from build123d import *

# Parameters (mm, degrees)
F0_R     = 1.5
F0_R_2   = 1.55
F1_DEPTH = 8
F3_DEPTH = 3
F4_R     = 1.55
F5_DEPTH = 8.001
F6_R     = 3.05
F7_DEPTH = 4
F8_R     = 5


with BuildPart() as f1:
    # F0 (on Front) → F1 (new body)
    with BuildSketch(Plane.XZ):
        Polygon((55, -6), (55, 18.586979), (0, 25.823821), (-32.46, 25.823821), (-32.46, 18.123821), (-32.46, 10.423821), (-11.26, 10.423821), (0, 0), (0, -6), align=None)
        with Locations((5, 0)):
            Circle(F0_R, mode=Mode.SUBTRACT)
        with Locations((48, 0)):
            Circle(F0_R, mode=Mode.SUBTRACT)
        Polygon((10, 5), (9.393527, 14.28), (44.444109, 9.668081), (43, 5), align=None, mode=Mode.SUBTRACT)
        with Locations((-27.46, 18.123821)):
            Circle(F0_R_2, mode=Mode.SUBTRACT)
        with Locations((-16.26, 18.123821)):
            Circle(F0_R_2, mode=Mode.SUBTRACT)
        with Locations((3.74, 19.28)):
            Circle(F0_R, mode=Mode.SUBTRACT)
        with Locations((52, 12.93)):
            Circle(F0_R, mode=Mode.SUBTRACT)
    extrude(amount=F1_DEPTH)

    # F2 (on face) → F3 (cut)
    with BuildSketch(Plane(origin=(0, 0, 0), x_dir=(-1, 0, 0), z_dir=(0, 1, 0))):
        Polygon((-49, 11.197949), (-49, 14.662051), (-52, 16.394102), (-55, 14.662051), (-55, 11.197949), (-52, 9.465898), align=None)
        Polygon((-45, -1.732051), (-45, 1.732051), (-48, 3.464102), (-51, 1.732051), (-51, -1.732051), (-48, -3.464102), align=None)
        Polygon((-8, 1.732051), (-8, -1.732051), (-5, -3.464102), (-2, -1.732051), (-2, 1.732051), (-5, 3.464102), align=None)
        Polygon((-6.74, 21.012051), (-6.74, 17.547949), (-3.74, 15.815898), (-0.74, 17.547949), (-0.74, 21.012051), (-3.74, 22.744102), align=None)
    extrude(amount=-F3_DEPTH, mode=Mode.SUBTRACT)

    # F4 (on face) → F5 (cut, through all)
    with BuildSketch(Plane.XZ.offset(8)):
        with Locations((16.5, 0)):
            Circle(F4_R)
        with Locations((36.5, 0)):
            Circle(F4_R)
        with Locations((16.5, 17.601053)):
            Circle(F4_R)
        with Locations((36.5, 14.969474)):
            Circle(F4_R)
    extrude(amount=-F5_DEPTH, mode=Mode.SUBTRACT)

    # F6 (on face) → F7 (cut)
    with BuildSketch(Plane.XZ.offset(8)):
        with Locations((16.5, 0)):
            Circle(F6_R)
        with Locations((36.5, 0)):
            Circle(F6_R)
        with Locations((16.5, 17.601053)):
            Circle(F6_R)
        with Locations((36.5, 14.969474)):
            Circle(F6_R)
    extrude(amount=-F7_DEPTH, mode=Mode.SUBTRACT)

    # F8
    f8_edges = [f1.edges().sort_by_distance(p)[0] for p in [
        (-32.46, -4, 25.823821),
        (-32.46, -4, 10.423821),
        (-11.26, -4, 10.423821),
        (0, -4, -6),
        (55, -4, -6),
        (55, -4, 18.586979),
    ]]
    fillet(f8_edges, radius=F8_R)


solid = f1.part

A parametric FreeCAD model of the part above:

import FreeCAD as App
import Part
import Sketcher
from FreeCAD import Vector
Q = App.Units.Quantity


def edges_at(feature, points):
    """Names of the edges that pass closest to the given points."""
    edges = feature.Shape.Edges
    near = lambda p: min(range(len(edges)), key=lambda i: edges[i].distToShape(Part.Vertex(*p))[0])
    return sorted({f"Edge{near(p) + 1}" for p in points})

doc = App.newDocument("Part")
body = doc.addObject("PartDesign::Body", "Body")

sketch1 = body.newObject("Sketcher::SketchObject", "Sketch")
sketch1.AttachmentSupport = (doc.getObject("XZ_Plane"), [""])
sketch1.MapMode = "FlatFace"
sketch1.addGeometry(Part.LineSegment(Vector(55, -6, 0), Vector(55, 18.586979, 0)), False)
sketch1.addGeometry(Part.LineSegment(Vector(55, 18.586979, 0), Vector(0, 25.823821, 0)), False)
sketch1.addGeometry(Part.LineSegment(Vector(0, 25.823821, 0), Vector(-32.46, 25.823821, 0)), False)
sketch1.addGeometry(Part.LineSegment(Vector(-32.46, 25.823821, 0), Vector(-32.46, 10.423821, 0)), False)
sketch1.addGeometry(Part.LineSegment(Vector(-32.46, 10.423821, 0), Vector(-11.26, 10.423821, 0)), False)
sketch1.addGeometry(Part.LineSegment(Vector(-11.26, 10.423821, 0), Vector(0, 0, 0)), False)
sketch1.addGeometry(Part.LineSegment(Vector(0, 0, 0), Vector(0, -6, 0)), False)
sketch1.addGeometry(Part.LineSegment(Vector(0, -6, 0), Vector(55, -6, 0)), False)
sketch1.addGeometry(Part.Circle(Vector(5, 0, 0), Vector(0, 0, 1), 1.5), False)
sketch1.addGeometry(Part.Circle(Vector(48, 0, 0), Vector(0, 0, 1), 1.5), False)
sketch1.addGeometry(Part.Circle(Vector(-27.46, 18.123821, 0), Vector(0, 0, 1), 1.55), False)
sketch1.addGeometry(Part.Circle(Vector(-16.26, 18.123821, 0), Vector(0, 0, 1), 1.55), False)
sketch1.addGeometry(Part.Circle(Vector(3.74, 19.28, 0), Vector(0, 0, 1), 1.5), False)
sketch1.addGeometry(Part.LineSegment(Vector(43, 5, 0), Vector(10, 5, 0)), False)
sketch1.addGeometry(Part.LineSegment(Vector(10, 5, 0), Vector(9.393527, 14.28, 0)), False)
sketch1.addGeometry(Part.LineSegment(Vector(9.393527, 14.28, 0), Vector(44.444109, 9.668081, 0)), False)
sketch1.addGeometry(Part.LineSegment(Vector(44.444109, 9.668081, 0), Vector(43, 5, 0)), False)
sketch1.addGeometry(Part.Circle(Vector(52, 12.93, 0), Vector(0, 0, 1), 1.5), False)
sketch1.addConstraint(Sketcher.Constraint("Coincident", 0, 2, 1, 1))
sketch1.addConstraint(Sketcher.Constraint("Coincident", 1, 2, 2, 1))
sketch1.addConstraint(Sketcher.Constraint("Coincident", 2, 2, 3, 1))
sketch1.addConstraint(Sketcher.Constraint("Coincident", 3, 2, 4, 1))
sketch1.addConstraint(Sketcher.Constraint("Coincident", 4, 2, 5, 1))
sketch1.addConstraint(Sketcher.Constraint("Coincident", 5, 2, 6, 1))
sketch1.addConstraint(Sketcher.Constraint("Coincident", 6, 2, 7, 1))
sketch1.addConstraint(Sketcher.Constraint("Coincident", 7, 2, 0, 1))
sketch1.addConstraint(Sketcher.Constraint("Coincident", 13, 2, 14, 1))
sketch1.addConstraint(Sketcher.Constraint("Coincident", 14, 2, 15, 1))
sketch1.addConstraint(Sketcher.Constraint("Coincident", 15, 2, 16, 1))
sketch1.addConstraint(Sketcher.Constraint("Coincident", 16, 2, 13, 1))
sketch1.addConstraint(Sketcher.Constraint("Vertical", 0))
sketch1.addConstraint(Sketcher.Constraint("Horizontal", 2))
sketch1.addConstraint(Sketcher.Constraint("Vertical", 3))
sketch1.addConstraint(Sketcher.Constraint("Horizontal", 4))
sketch1.addConstraint(Sketcher.Constraint("Vertical", 6))
sketch1.addConstraint(Sketcher.Constraint("Horizontal", 7))
sketch1.addConstraint(Sketcher.Constraint("Horizontal", 13))
sketch1.addConstraint(Sketcher.Constraint("Coincident", 5, 2, -1, 1))
sketch1.addConstraint(Sketcher.Constraint("Equal", 8, 9))
sketch1.addConstraint(Sketcher.Constraint("Equal", 10, 11))
sketch1.addConstraint(Sketcher.Constraint("Equal", 9, 12))
sketch1.addConstraint(Sketcher.Constraint("Equal", 12, 17))
sketch1.addConstraint(Sketcher.Constraint("PointOnObject", 8, 3, -1))
sketch1.addConstraint(Sketcher.Constraint("PointOnObject", 9, 3, -1))
sketch1.addConstraint(Sketcher.Constraint("PointOnObject", 1, 2, -2))
sketch1.addConstraint(Sketcher.Constraint("Parallel", 1, 15))
sketch1.addConstraint(Sketcher.Constraint("Horizontal", 10, 3, 11, 3))
sketch1.addConstraint(Sketcher.Constraint("Diameter", 8, 3.0))
sketch1.addConstraint(Sketcher.Constraint("Diameter", 10, 3.1))
sketch1.addConstraint(Sketcher.Constraint("DistanceX", 7, 1, 7, 2, 55.0))
sketch1.addConstraint(Sketcher.Constraint("DistanceX", 13, 2, 13, 1, 33.0))
sketch1.addConstraint(Sketcher.Constraint("DistanceY", 6, 2, 6, 1, 6.0))
sketch1.addConstraint(Sketcher.Constraint("DistanceX", 4, 1, 4, 2, 21.2))
sketch1.addConstraint(Sketcher.Constraint("DistanceY", 3, 2, 3, 1, 15.4))
sketch1.addConstraint(Sketcher.Constraint("DistanceX", -1, 1, 8, 3, 5.0))
sketch1.addConstraint(Sketcher.Constraint("DistanceX", -1, 1, 9, 3, 48.0))
sketch1.addConstraint(Sketcher.Constraint("DistanceX", -1, 1, 17, 3, 52.0))
sketch1.addConstraint(Sketcher.Constraint("DistanceX", -1, 1, 13, 2, 10.0))
sketch1.addConstraint(Sketcher.Constraint("DistanceY", -1, 1, 13, 2, 5.0))
sketch1.addConstraint(Sketcher.Constraint("DistanceX", 11, 3, 12, 3, 20.0))
sketch1.addConstraint(Sketcher.Constraint("DistanceX", 2, 2, 10, 3, 5.0))
sketch1.addConstraint(Sketcher.Constraint("DistanceX", 11, 3, 4, 2, 5.0))
sketch1.addConstraint(Sketcher.Constraint("DistanceY", 14, 2, 12, 3, 5.0))
sketch1.addConstraint(Sketcher.Constraint("DistanceX", 2, 2, 2, 1, 32.46))
sketch1.addConstraint(Sketcher.Constraint("DistanceY", 11, 3, 1, 2, 7.7))
sketch1.addConstraint(Sketcher.Constraint("DistanceY", -1, 1, 12, 3, 19.28))
sketch1.addConstraint(Sketcher.Constraint("DistanceY", -1, 1, 17, 3, 12.93))
sketch1.addConstraint(Sketcher.Constraint("DistanceY", 0, 1, 0, 2, 24.586979))
sketch1.addConstraint(Sketcher.Constraint("Distance", 16, 4.886352))
sketch1.addConstraint(Sketcher.Constraint("DistanceY", -1, 1, 10, 3, 18.123821))
sketch1.addConstraint(Sketcher.Constraint("DistanceX", -1, 1, 15, 2, 44.444109))
pad1 = body.newObject("PartDesign::Pad", "Pad")
pad1.Profile = sketch1
pad1.Length = 8

sketch2 = body.newObject("Sketcher::SketchObject", "Sketch001")
sketch2.AttachmentSupport = (doc.getObject("XZ_Plane"), [""])
sketch2.MapMode = "FlatFace"
sketch2.addGeometry(Part.LineSegment(Vector(49, 11.197949, 0), Vector(49, 14.662051, 0)), False)
sketch2.addGeometry(Part.LineSegment(Vector(49, 14.662051, 0), Vector(52, 16.394102, 0)), False)
sketch2.addGeometry(Part.LineSegment(Vector(52, 16.394102, 0), Vector(55, 14.662051, 0)), False)
sketch2.addGeometry(Part.LineSegment(Vector(55, 14.662051, 0), Vector(55, 11.197949, 0)), False)
sketch2.addGeometry(Part.LineSegment(Vector(55, 11.197949, 0), Vector(52, 9.465898, 0)), False)
sketch2.addGeometry(Part.LineSegment(Vector(52, 9.465898, 0), Vector(49, 11.197949, 0)), False)
sketch2.addGeometry(Part.LineSegment(Vector(45, -1.732051, 0), Vector(45, 1.732051, 0)), False)
sketch2.addGeometry(Part.LineSegment(Vector(45, 1.732051, 0), Vector(48, 3.464102, 0)), False)
sketch2.addGeometry(Part.LineSegment(Vector(48, 3.464102, 0), Vector(51, 1.732051, 0)), False)
sketch2.addGeometry(Part.LineSegment(Vector(51, 1.732051, 0), Vector(51, -1.732051, 0)), False)
sketch2.addGeometry(Part.LineSegment(Vector(51, -1.732051, 0), Vector(48, -3.464102, 0)), False)
sketch2.addGeometry(Part.LineSegment(Vector(48, -3.464102, 0), Vector(45, -1.732051, 0)), False)
sketch2.addGeometry(Part.LineSegment(Vector(8, 1.732051, 0), Vector(8, -1.732051, 0)), False)
sketch2.addGeometry(Part.LineSegment(Vector(8, -1.732051, 0), Vector(5, -3.464102, 0)), False)
sketch2.addGeometry(Part.LineSegment(Vector(5, -3.464102, 0), Vector(2, -1.732051, 0)), False)
sketch2.addGeometry(Part.LineSegment(Vector(2, -1.732051, 0), Vector(2, 1.732051, 0)), False)
sketch2.addGeometry(Part.LineSegment(Vector(2, 1.732051, 0), Vector(5, 3.464102, 0)), False)
sketch2.addGeometry(Part.LineSegment(Vector(5, 3.464102, 0), Vector(8, 1.732051, 0)), False)
sketch2.addGeometry(Part.LineSegment(Vector(6.74, 21.012051, 0), Vector(6.74, 17.547949, 0)), False)
sketch2.addGeometry(Part.LineSegment(Vector(6.74, 17.547949, 0), Vector(3.74, 15.815898, 0)), False)
sketch2.addGeometry(Part.LineSegment(Vector(3.74, 15.815898, 0), Vector(0.74, 17.547949, 0)), False)
sketch2.addGeometry(Part.LineSegment(Vector(0.74, 17.547949, 0), Vector(0.74, 21.012051, 0)), False)
sketch2.addGeometry(Part.LineSegment(Vector(0.74, 21.012051, 0), Vector(3.74, 22.744102, 0)), False)
sketch2.addGeometry(Part.LineSegment(Vector(3.74, 22.744102, 0), Vector(6.74, 21.012051, 0)), False)
sketch2.addConstraint(Sketcher.Constraint("Coincident", 0, 2, 1, 1))
sketch2.addConstraint(Sketcher.Constraint("Coincident", 1, 2, 2, 1))
sketch2.addConstraint(Sketcher.Constraint("Coincident", 2, 2, 3, 1))
sketch2.addConstraint(Sketcher.Constraint("Coincident", 3, 2, 4, 1))
sketch2.addConstraint(Sketcher.Constraint("Coincident", 4, 2, 5, 1))
sketch2.addConstraint(Sketcher.Constraint("Coincident", 5, 2, 0, 1))
sketch2.addConstraint(Sketcher.Constraint("Coincident", 6, 2, 7, 1))
sketch2.addConstraint(Sketcher.Constraint("Coincident", 7, 2, 8, 1))
sketch2.addConstraint(Sketcher.Constraint("Coincident", 8, 2, 9, 1))
sketch2.addConstraint(Sketcher.Constraint("Coincident", 9, 2, 10, 1))
sketch2.addConstraint(Sketcher.Constraint("Coincident", 10, 2, 11, 1))
sketch2.addConstraint(Sketcher.Constraint("Coincident", 11, 2, 6, 1))
sketch2.addConstraint(Sketcher.Constraint("Coincident", 12, 2, 13, 1))
sketch2.addConstraint(Sketcher.Constraint("Coincident", 13, 2, 14, 1))
sketch2.addConstraint(Sketcher.Constraint("Coincident", 14, 2, 15, 1))
sketch2.addConstraint(Sketcher.Constraint("Coincident", 15, 2, 16, 1))
sketch2.addConstraint(Sketcher.Constraint("Coincident", 16, 2, 17, 1))
sketch2.addConstraint(Sketcher.Constraint("Coincident", 17, 2, 12, 1))
sketch2.addConstraint(Sketcher.Constraint("Coincident", 18, 2, 19, 1))
sketch2.addConstraint(Sketcher.Constraint("Coincident", 19, 2, 20, 1))
sketch2.addConstraint(Sketcher.Constraint("Coincident", 20, 2, 21, 1))
sketch2.addConstraint(Sketcher.Constraint("Coincident", 21, 2, 22, 1))
sketch2.addConstraint(Sketcher.Constraint("Coincident", 22, 2, 23, 1))
sketch2.addConstraint(Sketcher.Constraint("Coincident", 23, 2, 18, 1))
sketch2.addConstraint(Sketcher.Constraint("Vertical", 0))
sketch2.addConstraint(Sketcher.Constraint("Vertical", 3))
sketch2.addConstraint(Sketcher.Constraint("Vertical", 6))
sketch2.addConstraint(Sketcher.Constraint("Vertical", 9))
sketch2.addConstraint(Sketcher.Constraint("Vertical", 12))
sketch2.addConstraint(Sketcher.Constraint("Vertical", 15))
sketch2.addConstraint(Sketcher.Constraint("Vertical", 18))
sketch2.addConstraint(Sketcher.Constraint("Vertical", 21))
sketch2.addConstraint(Sketcher.Constraint("Symmetric", 7, 2, 10, 2, -1))
sketch2.addConstraint(Sketcher.Constraint("Symmetric", 13, 2, 16, 2, -1))
sketch2.addConstraint(Sketcher.Constraint("Parallel", 1, 4))
sketch2.addConstraint(Sketcher.Constraint("Parallel", 2, 5))
sketch2.addConstraint(Sketcher.Constraint("Parallel", 4, 7))
sketch2.addConstraint(Sketcher.Constraint("Parallel", 5, 8))
sketch2.addConstraint(Sketcher.Constraint("Parallel", 7, 10))
sketch2.addConstraint(Sketcher.Constraint("Parallel", 8, 11))
sketch2.addConstraint(Sketcher.Constraint("Parallel", 10, 13))
sketch2.addConstraint(Sketcher.Constraint("Parallel", 11, 14))
sketch2.addConstraint(Sketcher.Constraint("Parallel", 13, 16))
sketch2.addConstraint(Sketcher.Constraint("Parallel", 14, 17))
sketch2.addConstraint(Sketcher.Constraint("Parallel", 16, 19))
sketch2.addConstraint(Sketcher.Constraint("Parallel", 17, 20))
sketch2.addConstraint(Sketcher.Constraint("Parallel", 19, 22))
sketch2.addConstraint(Sketcher.Constraint("Parallel", 20, 23))
sketch2.addConstraint(Sketcher.Constraint("Horizontal", 0, 2, 2, 2))
sketch2.addConstraint(Sketcher.Constraint("Horizontal", 3, 2, 5, 2))
sketch2.addConstraint(Sketcher.Constraint("Horizontal", 6, 2, 8, 2))
sketch2.addConstraint(Sketcher.Constraint("Horizontal", 9, 2, 11, 2))
sketch2.addConstraint(Sketcher.Constraint("Horizontal", 11, 2, 12, 2))
sketch2.addConstraint(Sketcher.Constraint("Horizontal", 10, 2, 13, 2))
sketch2.addConstraint(Sketcher.Constraint("Horizontal", 12, 2, 14, 2))
sketch2.addConstraint(Sketcher.Constraint("Horizontal", 18, 2, 20, 2))
sketch2.addConstraint(Sketcher.Constraint("Horizontal", 21, 2, 23, 2))
sketch2.addConstraint(Sketcher.Constraint("Equal", 3, 6))
sketch2.addConstraint(Sketcher.Constraint("Equal", 15, 18))
sketch2.addConstraint(Sketcher.Constraint("Equal", 5, 7))
sketch2.addConstraint(Sketcher.Constraint("Equal", 17, 19))
sketch2.addConstraint(Sketcher.Constraint("Angle", 1, Q("30.000003 deg")))
sketch2.addConstraint(Sketcher.Constraint("DistanceX", -1, 1, 0, 2, 49.0))
sketch2.addConstraint(Sketcher.Constraint("DistanceX", -1, 1, 1, 2, 52.0))
sketch2.addConstraint(Sketcher.Constraint("DistanceX", -1, 1, 6, 2, 45.0))
sketch2.addConstraint(Sketcher.Constraint("DistanceX", -1, 1, 12, 2, 8.0))
sketch2.addConstraint(Sketcher.Constraint("DistanceX", -1, 1, 18, 2, 6.74))
sketch2.addConstraint(Sketcher.Constraint("DistanceY", 6, 2, 0, 2, 12.93))
sketch2.addConstraint(Sketcher.Constraint("DistanceY", 12, 2, 18, 2, 19.28))
sketch2.addConstraint(Sketcher.Constraint("DistanceY", 6, 1, 6, 2, 3.464102))
pocket1 = body.newObject("PartDesign::Pocket", "Pocket")
pocket1.Profile = sketch2
pocket1.Length = 3
pocket1.Reversed = True

sketch3 = body.newObject("Sketcher::SketchObject", "Sketch002")
sketch3.AttachmentSupport = (doc.getObject("XZ_Plane"), [""])
sketch3.MapMode = "FlatFace"
sketch3.AttachmentOffset = App.Placement(Vector(0, 0, 8), App.Rotation())
sketch3.addGeometry(Part.Circle(Vector(16.5, 0, 0), Vector(0, 0, 1), 1.55), False)
sketch3.addGeometry(Part.Circle(Vector(36.5, 0, 0), Vector(0, 0, 1), 1.55), False)
sketch3.addGeometry(Part.Circle(Vector(16.5, 17.601053, 0), Vector(0, 0, 1), 1.55), False)
sketch3.addGeometry(Part.Circle(Vector(36.5, 14.969474, 0), Vector(0, 0, 1), 1.55), False)
sketch3.addConstraint(Sketcher.Constraint("Equal", 0, 1))
sketch3.addConstraint(Sketcher.Constraint("Equal", 1, 2))
sketch3.addConstraint(Sketcher.Constraint("Equal", 2, 3))
sketch3.addConstraint(Sketcher.Constraint("PointOnObject", 0, 3, -1))
sketch3.addConstraint(Sketcher.Constraint("PointOnObject", 1, 3, -1))
sketch3.addConstraint(Sketcher.Constraint("Vertical", 0, 3, 2, 3))
sketch3.addConstraint(Sketcher.Constraint("Vertical", 1, 3, 3, 3))
sketch3.addConstraint(Sketcher.Constraint("Diameter", 0, 3.1))
sketch3.addConstraint(Sketcher.Constraint("DistanceX", 0, 3, 1, 3, 20.0))
sketch3.addConstraint(Sketcher.Constraint("DistanceX", -1, 1, 0, 3, 16.5))
sketch3.addConstraint(Sketcher.Constraint("DistanceY", 3, 3, 2, 3, 2.631579))
sketch3.addConstraint(Sketcher.Constraint("DistanceY", -1, 1, 2, 3, 17.601053))
pocket2 = body.newObject("PartDesign::Pocket", "Pocket001")
pocket2.Profile = sketch3
pocket2.Type = "ThroughAll"

sketch4 = body.newObject("Sketcher::SketchObject", "Sketch003")
sketch4.AttachmentSupport = (doc.getObject("XZ_Plane"), [""])
sketch4.MapMode = "FlatFace"
sketch4.AttachmentOffset = App.Placement(Vector(0, 0, 8), App.Rotation())
sketch4.addGeometry(Part.Circle(Vector(16.5, 0, 0), Vector(0, 0, 1), 3.05), False)
sketch4.addGeometry(Part.Circle(Vector(36.5, 0, 0), Vector(0, 0, 1), 3.05), False)
sketch4.addGeometry(Part.Circle(Vector(16.5, 17.601053, 0), Vector(0, 0, 1), 3.05), False)
sketch4.addGeometry(Part.Circle(Vector(36.5, 14.969474, 0), Vector(0, 0, 1), 3.05), False)
sketch4.addConstraint(Sketcher.Constraint("Equal", 0, 1))
sketch4.addConstraint(Sketcher.Constraint("Equal", 1, 2))
sketch4.addConstraint(Sketcher.Constraint("Equal", 2, 3))
sketch4.addConstraint(Sketcher.Constraint("PointOnObject", 0, 3, -1))
sketch4.addConstraint(Sketcher.Constraint("PointOnObject", 1, 3, -1))
sketch4.addConstraint(Sketcher.Constraint("Vertical", 0, 3, 2, 3))
sketch4.addConstraint(Sketcher.Constraint("Vertical", 1, 3, 3, 3))
sketch4.addConstraint(Sketcher.Constraint("Diameter", 0, 6.1))
sketch4.addConstraint(Sketcher.Constraint("DistanceX", 0, 3, 1, 3, 20.0))
sketch4.addConstraint(Sketcher.Constraint("DistanceX", -1, 1, 0, 3, 16.5))
sketch4.addConstraint(Sketcher.Constraint("DistanceY", 3, 3, 2, 3, 2.631579))
sketch4.addConstraint(Sketcher.Constraint("DistanceY", -1, 1, 2, 3, 17.601053))
pocket3 = body.newObject("PartDesign::Pocket", "Pocket002")
pocket3.Profile = sketch4
pocket3.Length = 4
doc.recompute()

fillet = body.newObject("PartDesign::Fillet", "Fillet")
fillet.Base = (pocket3, edges_at(pocket3, [
    (-32.46, -4, 25.824),
    (-32.46, -4, 10.424),
    (-11.26, -4, 10.424),
    (0, -4, -6),
    (55, -4, -6),
    (55, -4, 18.587),
]))
fillet.Radius = 5

doc.recompute()
